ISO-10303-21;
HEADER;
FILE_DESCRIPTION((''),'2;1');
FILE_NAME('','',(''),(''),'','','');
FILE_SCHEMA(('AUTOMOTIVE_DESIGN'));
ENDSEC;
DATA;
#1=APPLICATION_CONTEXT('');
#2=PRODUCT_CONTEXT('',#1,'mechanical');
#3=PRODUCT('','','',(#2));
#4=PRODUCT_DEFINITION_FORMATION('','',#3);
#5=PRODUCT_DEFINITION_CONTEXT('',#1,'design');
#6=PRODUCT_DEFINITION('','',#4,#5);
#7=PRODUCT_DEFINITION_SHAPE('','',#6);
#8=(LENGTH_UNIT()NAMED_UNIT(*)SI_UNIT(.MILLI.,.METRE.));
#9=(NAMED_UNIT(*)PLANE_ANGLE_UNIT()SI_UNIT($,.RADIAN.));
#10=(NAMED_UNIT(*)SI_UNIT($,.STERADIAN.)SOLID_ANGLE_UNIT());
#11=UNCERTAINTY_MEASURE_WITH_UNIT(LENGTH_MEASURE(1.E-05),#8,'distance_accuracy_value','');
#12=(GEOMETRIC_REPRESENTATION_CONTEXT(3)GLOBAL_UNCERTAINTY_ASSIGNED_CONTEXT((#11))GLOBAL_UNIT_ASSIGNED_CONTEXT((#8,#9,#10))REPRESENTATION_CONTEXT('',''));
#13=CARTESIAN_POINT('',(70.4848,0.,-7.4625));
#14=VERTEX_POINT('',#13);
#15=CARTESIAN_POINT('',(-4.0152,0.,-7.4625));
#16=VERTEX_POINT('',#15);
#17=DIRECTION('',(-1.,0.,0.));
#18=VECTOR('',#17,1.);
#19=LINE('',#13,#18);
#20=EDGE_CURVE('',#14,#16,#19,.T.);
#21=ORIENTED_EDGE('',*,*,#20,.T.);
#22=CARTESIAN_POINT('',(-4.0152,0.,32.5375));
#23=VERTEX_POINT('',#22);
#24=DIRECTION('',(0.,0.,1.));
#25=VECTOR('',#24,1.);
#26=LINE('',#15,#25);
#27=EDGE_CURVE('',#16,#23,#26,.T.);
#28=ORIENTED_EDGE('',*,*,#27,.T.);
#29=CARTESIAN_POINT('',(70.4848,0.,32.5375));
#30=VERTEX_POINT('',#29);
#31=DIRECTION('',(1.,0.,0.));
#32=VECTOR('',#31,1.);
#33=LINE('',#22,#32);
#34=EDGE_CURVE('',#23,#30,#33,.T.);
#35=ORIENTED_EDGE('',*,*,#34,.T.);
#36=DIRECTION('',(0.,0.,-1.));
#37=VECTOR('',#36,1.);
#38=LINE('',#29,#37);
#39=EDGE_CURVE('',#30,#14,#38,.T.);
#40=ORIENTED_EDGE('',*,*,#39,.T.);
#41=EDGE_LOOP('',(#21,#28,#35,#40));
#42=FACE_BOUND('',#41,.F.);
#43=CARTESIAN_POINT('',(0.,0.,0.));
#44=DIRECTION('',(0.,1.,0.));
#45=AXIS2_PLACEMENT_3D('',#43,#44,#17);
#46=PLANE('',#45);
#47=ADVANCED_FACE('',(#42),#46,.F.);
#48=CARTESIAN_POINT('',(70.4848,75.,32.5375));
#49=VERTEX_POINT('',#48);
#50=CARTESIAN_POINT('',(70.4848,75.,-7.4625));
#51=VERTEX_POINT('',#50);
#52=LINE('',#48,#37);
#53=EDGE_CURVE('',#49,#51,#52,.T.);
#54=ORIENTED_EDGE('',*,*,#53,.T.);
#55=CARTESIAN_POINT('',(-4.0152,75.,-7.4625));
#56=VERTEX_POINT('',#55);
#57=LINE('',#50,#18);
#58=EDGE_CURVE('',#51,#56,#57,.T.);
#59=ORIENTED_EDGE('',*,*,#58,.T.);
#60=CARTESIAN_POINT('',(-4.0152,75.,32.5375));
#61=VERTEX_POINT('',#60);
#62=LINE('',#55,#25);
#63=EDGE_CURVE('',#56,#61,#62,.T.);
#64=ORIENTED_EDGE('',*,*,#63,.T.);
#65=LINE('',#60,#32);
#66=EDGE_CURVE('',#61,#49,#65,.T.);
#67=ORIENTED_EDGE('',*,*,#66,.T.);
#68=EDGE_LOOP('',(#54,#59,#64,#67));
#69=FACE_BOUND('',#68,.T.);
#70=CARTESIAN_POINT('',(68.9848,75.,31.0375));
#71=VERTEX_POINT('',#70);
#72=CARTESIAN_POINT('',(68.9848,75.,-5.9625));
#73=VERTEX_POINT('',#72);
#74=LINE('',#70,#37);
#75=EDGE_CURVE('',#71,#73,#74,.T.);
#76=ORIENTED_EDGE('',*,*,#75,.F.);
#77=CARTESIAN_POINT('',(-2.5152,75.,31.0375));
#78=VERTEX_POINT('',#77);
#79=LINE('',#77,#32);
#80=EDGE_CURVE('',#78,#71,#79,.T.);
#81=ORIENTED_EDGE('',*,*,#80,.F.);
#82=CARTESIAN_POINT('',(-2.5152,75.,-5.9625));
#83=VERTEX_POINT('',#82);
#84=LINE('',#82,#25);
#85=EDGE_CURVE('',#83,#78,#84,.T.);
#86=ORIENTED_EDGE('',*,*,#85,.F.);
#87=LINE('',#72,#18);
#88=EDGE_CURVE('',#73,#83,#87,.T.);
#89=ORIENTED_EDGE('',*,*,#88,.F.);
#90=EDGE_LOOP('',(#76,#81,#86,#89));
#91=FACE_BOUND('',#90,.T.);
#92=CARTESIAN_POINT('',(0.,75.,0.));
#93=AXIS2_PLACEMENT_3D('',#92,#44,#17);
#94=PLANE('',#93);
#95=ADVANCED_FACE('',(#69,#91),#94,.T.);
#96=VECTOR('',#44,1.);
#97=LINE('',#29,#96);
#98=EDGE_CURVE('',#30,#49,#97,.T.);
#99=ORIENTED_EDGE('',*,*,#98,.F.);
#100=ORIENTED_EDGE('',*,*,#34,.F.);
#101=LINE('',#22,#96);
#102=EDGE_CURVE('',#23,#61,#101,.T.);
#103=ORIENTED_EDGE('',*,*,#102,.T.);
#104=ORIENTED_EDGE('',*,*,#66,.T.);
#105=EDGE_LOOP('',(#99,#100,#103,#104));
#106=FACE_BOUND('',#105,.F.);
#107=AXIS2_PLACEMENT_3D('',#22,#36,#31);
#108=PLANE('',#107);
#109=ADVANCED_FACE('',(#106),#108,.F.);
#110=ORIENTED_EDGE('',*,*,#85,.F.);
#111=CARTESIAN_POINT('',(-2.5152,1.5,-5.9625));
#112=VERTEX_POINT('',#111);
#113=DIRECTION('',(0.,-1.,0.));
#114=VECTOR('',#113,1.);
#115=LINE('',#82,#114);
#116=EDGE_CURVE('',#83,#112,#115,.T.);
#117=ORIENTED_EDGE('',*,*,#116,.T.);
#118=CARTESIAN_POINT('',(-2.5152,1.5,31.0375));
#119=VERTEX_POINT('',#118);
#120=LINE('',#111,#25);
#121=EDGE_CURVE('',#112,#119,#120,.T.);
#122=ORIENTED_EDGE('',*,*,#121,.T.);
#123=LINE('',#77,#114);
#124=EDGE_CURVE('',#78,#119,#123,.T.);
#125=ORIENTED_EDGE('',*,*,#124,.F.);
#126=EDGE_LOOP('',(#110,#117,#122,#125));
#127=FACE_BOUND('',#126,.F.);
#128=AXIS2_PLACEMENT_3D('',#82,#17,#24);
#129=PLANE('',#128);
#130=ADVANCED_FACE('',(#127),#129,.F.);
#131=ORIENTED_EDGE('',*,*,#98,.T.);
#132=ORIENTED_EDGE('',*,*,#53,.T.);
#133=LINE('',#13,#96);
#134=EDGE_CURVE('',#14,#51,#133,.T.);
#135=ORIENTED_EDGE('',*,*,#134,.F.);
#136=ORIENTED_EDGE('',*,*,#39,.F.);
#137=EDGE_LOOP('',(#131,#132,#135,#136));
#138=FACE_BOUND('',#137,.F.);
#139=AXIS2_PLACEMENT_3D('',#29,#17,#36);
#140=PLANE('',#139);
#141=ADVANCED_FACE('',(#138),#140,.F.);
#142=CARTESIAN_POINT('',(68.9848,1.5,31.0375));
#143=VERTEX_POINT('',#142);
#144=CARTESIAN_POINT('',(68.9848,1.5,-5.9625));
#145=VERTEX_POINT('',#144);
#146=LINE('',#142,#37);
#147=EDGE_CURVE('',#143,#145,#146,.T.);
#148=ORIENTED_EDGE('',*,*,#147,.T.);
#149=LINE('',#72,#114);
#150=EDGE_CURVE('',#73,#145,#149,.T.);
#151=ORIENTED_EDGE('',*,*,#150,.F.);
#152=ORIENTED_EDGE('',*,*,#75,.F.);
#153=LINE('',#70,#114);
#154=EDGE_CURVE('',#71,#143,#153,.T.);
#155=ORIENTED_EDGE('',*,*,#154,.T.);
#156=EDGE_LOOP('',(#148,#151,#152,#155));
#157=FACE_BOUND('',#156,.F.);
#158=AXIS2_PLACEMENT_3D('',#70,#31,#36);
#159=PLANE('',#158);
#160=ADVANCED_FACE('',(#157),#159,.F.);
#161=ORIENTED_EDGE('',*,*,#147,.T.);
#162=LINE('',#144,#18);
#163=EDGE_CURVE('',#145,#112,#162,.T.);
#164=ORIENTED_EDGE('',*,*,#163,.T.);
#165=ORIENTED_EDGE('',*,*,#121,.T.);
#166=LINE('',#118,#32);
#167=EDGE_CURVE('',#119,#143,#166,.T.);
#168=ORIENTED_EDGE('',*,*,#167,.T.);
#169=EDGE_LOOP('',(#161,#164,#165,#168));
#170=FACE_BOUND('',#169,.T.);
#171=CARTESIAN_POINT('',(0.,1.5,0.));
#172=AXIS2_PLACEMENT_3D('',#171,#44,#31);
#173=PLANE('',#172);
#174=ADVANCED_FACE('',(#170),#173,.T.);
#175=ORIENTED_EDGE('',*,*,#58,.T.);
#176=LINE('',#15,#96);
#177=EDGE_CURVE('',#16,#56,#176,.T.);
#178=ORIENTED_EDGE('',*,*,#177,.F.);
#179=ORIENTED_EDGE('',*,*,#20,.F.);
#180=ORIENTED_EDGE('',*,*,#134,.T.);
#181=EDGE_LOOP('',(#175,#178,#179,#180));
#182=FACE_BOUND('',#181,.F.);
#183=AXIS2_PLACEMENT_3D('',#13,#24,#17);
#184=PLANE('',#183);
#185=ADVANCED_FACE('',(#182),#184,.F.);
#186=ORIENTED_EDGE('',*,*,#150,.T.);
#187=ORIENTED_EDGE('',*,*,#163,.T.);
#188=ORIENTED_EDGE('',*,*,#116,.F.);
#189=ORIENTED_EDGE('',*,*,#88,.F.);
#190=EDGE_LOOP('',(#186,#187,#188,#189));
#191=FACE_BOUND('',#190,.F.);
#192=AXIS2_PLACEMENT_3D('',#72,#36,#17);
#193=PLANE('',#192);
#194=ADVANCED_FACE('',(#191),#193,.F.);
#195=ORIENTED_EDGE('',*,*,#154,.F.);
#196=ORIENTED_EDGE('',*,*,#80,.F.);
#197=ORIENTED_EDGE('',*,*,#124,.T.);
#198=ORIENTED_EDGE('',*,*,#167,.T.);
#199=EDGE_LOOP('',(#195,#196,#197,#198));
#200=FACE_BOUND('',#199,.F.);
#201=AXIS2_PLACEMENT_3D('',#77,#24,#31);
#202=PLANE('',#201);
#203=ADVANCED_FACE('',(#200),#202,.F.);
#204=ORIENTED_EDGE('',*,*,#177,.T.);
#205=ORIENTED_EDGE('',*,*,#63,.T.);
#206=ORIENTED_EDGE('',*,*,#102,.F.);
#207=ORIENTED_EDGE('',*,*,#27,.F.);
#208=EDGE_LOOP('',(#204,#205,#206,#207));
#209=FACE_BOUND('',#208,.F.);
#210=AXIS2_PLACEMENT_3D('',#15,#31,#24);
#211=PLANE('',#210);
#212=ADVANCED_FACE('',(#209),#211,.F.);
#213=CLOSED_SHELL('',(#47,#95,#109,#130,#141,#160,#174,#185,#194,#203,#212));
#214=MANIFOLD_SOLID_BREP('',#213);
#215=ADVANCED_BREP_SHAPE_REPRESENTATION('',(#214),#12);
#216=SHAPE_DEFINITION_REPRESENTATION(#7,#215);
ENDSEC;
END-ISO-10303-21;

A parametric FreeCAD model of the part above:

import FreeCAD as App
import Part
import Sketcher

doc = App.newDocument("Part")
body = doc.addObject("PartDesign::Body", "Body")

# Sketch on XZ plane
sketch1 = body.newObject("Sketcher::SketchObject", "Sketch")
sketch1.AttachmentSupport = (doc.getObject("XZ_Plane"), [""])
sketch1.MapMode = "FlatFace"
sketch1.addGeometry([
    Part.LineSegment(App.Vector(-4.0152, -7.4625, 0), App.Vector(-4.0152, 32.5375, 0)),
    Part.LineSegment(App.Vector(-4.0152, 32.5375, 0), App.Vector(70.4848, 32.5375, 0)),
    Part.LineSegment(App.Vector(70.4848, 32.5375, 0), App.Vector(70.4848, -7.4625, 0)),
    Part.LineSegment(App.Vector(70.4848, -7.4625, 0), App.Vector(-4.0152, -7.4625, 0)),
], False)
sketch1.addConstraint([
    Sketcher.Constraint("Coincident", 0, 2, 1, 1),
    Sketcher.Constraint("Coincident", 1, 2, 2, 1),
    Sketcher.Constraint("Coincident", 2, 2, 3, 1),
    Sketcher.Constraint("Coincident", 3, 2, 0, 1),
    Sketcher.Constraint("Vertical", 0),
    Sketcher.Constraint("Horizontal", 1),
    Sketcher.Constraint("Vertical", 2),
    Sketcher.Constraint("Horizontal", 3),
    Sketcher.Constraint("DistanceY", 0, 1, 0, 2, 40.0),
    Sketcher.Constraint("DistanceX", 1, 1, 1, 2, 74.5),
    Sketcher.Constraint("DistanceX", 0, 2, -1, 1, 4.0152),
    Sketcher.Constraint("DistanceY", -1, 1, 0, 2, 32.5375),
])
pad1 = body.newObject("PartDesign::Pad", "Pad")
pad1.Profile = sketch1
pad1.Length = 75
pad1.Reversed = True

# Sketch on XZ plane
sketch2 = body.newObject("Sketcher::SketchObject", "Sketch001")
sketch2.AttachmentSupport = (doc.getObject("XZ_Plane"), [""])
sketch2.MapMode = "FlatFace"
sketch2.AttachmentOffset = App.Placement(App.Vector(0, 0, -75), App.Rotation())
sketch2.addGeometry([
    Part.LineSegment(App.Vector(-2.5152, -5.9625, 0), App.Vector(-2.5152, 31.0375, 0)),
    Part.LineSegment(App.Vector(-2.5152, 31.0375, 0), App.Vector(68.9848, 31.0375, 0)),
    Part.LineSegment(App.Vector(68.9848, 31.0375, 0), App.Vector(68.9848, -5.9625, 0)),
    Part.LineSegment(App.Vector(68.9848, -5.9625, 0), App.Vector(-2.5152, -5.9625, 0)),
], False)
sketch2.addConstraint([
    Sketcher.Constraint("Coincident", 0, 2, 1, 1),
    Sketcher.Constraint("Coincident", 1, 2, 2, 1),
    Sketcher.Constraint("Coincident", 2, 2, 3, 1),
    Sketcher.Constraint("Coincident", 3, 2, 0, 1),
    Sketcher.Constraint("Vertical", 0),
    Sketcher.Constraint("Horizontal", 1),
    Sketcher.Constraint("Vertical", 2),
    Sketcher.Constraint("Horizontal", 3),
    Sketcher.Constraint("DistanceY", 0, 1, 0, 2, 37.0),
    Sketcher.Constraint("DistanceX", 1, 1, 1, 2, 71.5),
    Sketcher.Constraint("DistanceX", 0, 2, -1, 1, 2.5152),
    Sketcher.Constraint("DistanceY", -1, 1, 0, 2, 31.0375),
])
pocket1 = body.newObject("PartDesign::Pocket", "Pocket")
pocket1.Profile = sketch2
pocket1.Length = 73.5
pocket1.Reversed = True

doc.recompute()
